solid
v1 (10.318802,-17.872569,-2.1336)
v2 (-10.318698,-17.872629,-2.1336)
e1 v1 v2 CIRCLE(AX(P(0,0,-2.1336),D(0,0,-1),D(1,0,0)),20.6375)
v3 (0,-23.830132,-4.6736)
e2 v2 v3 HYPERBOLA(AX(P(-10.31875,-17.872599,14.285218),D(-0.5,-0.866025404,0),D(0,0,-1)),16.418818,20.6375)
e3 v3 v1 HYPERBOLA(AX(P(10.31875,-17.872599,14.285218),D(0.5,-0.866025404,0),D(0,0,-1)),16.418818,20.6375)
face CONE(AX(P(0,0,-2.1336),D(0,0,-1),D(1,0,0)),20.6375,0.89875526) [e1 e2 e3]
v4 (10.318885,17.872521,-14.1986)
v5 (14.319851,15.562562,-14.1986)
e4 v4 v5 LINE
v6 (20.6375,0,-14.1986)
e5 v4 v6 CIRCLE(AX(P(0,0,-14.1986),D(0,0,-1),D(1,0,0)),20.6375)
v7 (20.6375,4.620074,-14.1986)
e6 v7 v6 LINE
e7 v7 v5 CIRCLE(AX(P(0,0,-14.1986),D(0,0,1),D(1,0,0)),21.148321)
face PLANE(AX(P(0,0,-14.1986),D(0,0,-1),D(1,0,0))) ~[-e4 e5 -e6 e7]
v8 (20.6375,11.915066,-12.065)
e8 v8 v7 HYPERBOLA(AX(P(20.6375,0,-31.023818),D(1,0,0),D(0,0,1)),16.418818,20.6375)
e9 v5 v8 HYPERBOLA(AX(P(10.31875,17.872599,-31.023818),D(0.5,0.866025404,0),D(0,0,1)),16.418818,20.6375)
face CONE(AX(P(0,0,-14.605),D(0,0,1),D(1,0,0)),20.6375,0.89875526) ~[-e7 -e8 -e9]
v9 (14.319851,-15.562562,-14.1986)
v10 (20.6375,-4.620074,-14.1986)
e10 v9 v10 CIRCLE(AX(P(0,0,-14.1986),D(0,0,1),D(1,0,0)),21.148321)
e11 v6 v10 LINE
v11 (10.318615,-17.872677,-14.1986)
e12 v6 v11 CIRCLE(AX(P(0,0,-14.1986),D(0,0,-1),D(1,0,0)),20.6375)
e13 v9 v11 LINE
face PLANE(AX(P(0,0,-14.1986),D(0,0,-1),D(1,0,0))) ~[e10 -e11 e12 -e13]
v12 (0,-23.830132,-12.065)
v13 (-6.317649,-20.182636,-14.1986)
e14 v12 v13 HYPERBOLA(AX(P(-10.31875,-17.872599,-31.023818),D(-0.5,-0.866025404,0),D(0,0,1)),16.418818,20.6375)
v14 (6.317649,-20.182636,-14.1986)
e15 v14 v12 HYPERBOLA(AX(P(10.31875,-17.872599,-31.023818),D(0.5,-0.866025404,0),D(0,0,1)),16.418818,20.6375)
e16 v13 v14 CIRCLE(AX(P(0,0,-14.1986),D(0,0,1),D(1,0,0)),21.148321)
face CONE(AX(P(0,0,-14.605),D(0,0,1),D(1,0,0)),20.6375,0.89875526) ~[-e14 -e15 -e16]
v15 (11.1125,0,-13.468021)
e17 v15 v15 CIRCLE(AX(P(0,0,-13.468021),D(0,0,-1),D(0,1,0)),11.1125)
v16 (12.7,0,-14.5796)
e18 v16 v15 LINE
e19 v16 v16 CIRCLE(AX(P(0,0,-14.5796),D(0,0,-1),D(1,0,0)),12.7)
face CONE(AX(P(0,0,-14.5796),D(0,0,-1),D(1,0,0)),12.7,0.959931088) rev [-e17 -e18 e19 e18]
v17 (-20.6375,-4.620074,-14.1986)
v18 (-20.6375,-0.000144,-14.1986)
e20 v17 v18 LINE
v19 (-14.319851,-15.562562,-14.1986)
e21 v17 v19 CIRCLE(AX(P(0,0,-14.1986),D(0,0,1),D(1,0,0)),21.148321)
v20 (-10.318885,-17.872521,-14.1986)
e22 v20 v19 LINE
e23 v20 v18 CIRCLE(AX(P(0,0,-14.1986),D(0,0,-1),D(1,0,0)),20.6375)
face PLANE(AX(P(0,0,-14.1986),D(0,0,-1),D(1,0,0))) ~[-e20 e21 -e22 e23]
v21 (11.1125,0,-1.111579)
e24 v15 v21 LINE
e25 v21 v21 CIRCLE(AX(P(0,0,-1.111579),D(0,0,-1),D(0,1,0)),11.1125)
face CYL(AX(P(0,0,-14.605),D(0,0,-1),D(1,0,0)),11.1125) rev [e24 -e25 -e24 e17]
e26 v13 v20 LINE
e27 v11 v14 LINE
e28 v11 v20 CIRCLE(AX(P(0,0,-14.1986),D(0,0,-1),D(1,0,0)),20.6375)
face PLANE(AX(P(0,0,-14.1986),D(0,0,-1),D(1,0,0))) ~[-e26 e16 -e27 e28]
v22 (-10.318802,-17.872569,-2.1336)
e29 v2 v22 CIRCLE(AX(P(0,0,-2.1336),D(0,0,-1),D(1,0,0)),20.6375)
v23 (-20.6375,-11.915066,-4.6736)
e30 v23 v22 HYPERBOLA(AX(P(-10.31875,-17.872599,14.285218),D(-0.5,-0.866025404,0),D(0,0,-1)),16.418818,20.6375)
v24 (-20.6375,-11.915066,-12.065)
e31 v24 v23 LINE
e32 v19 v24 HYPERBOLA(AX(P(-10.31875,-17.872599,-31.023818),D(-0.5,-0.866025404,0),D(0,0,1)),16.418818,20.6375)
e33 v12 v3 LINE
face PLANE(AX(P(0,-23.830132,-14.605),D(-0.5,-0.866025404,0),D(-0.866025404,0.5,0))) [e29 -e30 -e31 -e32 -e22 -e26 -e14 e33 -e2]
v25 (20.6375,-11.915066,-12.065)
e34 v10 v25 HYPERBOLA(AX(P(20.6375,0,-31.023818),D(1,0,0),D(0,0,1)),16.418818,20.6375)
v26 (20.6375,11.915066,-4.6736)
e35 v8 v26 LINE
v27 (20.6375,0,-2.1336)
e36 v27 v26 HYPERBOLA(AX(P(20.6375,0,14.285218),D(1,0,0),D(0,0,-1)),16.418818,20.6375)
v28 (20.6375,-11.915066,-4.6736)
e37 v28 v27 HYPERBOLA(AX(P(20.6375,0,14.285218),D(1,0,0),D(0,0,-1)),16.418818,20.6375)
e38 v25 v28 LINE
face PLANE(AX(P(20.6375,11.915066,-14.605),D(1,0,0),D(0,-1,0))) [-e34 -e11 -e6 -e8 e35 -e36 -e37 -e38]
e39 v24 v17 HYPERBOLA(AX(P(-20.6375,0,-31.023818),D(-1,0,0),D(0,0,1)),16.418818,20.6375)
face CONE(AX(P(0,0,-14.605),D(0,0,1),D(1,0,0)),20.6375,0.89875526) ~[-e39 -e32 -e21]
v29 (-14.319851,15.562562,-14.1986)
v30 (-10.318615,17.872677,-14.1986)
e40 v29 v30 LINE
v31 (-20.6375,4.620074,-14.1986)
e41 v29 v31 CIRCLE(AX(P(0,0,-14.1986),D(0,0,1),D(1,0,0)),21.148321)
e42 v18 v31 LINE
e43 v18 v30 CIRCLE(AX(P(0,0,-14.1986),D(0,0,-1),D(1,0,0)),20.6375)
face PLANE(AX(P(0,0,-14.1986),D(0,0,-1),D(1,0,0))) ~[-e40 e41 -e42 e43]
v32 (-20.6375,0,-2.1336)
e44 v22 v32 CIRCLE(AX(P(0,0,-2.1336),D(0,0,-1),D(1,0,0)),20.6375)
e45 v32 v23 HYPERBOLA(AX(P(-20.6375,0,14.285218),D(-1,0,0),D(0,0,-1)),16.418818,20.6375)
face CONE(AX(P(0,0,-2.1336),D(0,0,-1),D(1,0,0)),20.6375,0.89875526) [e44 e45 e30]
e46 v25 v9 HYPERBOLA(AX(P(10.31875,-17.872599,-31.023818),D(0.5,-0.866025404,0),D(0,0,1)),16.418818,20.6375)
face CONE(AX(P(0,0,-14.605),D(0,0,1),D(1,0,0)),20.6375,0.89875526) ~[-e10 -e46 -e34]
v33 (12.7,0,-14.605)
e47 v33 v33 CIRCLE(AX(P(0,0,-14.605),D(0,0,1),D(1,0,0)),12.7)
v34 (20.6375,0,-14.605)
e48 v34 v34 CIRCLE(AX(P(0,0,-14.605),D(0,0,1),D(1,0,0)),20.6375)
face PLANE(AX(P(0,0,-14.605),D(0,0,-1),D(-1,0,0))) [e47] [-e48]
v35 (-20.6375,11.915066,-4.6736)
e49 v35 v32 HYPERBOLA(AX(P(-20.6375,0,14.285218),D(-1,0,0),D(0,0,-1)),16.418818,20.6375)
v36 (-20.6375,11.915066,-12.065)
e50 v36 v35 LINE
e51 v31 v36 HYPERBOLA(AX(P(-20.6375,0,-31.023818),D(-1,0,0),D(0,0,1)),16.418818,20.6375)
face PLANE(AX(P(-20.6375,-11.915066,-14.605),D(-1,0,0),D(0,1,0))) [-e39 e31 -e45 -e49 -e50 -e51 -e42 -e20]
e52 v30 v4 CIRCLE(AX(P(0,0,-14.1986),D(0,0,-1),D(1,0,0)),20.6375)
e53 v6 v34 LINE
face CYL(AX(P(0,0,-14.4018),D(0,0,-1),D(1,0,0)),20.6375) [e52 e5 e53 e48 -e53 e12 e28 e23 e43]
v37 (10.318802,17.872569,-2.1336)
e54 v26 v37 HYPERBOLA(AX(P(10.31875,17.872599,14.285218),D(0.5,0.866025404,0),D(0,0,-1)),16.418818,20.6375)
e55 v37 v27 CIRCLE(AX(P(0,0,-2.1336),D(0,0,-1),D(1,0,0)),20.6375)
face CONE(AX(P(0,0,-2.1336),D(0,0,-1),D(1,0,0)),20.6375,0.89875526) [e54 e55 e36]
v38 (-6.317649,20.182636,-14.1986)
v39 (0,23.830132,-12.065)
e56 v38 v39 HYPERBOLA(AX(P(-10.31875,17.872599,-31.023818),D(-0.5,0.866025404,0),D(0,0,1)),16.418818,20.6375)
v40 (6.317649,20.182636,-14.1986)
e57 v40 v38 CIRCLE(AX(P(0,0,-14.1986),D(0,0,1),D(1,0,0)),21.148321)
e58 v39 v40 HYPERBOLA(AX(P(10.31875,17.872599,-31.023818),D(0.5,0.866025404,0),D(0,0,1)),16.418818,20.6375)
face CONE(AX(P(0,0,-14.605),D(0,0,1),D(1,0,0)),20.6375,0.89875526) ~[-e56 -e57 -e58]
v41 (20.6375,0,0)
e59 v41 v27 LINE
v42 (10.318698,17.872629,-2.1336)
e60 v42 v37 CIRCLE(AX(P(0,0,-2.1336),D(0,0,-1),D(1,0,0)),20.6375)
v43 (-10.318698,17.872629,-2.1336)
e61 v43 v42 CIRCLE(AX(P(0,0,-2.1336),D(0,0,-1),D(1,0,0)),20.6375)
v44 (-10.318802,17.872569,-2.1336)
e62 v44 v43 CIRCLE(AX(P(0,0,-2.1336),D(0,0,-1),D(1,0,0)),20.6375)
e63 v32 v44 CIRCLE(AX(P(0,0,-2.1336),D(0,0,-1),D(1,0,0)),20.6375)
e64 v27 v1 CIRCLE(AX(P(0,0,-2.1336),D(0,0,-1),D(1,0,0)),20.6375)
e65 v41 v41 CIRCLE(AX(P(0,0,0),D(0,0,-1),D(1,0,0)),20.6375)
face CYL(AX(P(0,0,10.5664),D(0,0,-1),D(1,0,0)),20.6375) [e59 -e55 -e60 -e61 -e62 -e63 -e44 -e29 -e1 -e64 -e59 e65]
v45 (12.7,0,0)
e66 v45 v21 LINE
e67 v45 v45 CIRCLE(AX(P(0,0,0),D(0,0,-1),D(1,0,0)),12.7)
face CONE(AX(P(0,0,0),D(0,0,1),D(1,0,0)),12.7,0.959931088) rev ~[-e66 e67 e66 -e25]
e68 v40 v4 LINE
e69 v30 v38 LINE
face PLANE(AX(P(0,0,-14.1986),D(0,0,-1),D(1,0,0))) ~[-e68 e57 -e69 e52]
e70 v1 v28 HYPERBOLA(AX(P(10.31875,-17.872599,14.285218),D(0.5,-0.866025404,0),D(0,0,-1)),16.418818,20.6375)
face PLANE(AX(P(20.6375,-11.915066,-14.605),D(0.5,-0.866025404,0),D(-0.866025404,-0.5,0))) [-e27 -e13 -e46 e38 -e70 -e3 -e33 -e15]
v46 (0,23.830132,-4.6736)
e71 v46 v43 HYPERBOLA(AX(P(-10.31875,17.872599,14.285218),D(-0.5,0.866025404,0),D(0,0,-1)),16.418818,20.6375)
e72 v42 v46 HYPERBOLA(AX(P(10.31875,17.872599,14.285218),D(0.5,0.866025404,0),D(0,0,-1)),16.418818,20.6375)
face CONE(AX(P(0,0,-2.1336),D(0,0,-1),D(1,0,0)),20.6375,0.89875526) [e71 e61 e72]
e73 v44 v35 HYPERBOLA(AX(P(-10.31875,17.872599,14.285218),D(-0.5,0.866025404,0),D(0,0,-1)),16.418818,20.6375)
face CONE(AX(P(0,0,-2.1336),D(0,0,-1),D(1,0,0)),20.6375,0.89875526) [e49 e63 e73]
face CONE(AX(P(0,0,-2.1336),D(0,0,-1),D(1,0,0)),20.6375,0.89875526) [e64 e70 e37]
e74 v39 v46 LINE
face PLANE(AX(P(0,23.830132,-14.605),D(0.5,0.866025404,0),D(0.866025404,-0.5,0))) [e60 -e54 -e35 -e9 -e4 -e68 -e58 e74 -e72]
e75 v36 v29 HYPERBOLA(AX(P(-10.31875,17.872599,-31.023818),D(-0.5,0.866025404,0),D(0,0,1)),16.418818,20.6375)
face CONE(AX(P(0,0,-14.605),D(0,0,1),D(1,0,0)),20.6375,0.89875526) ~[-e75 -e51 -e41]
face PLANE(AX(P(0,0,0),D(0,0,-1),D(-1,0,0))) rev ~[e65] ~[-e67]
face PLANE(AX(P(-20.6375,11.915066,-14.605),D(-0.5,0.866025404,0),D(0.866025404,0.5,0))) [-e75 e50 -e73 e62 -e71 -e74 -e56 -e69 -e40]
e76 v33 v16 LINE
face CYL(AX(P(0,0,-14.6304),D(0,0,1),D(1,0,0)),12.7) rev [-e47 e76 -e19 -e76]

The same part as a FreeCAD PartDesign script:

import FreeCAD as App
import Part
import Sketcher
from FreeCAD import Vector
Q = App.Units.Quantity

doc = App.newDocument("Part")
body = doc.addObject("PartDesign::Body", "Body")

sketch1 = body.newObject("Sketcher::SketchObject", "Sketch")
sketch1.AttachmentSupport = (doc.getObject("XY_Plane"), [""])
sketch1.MapMode = "FlatFace"
sketch1.AttachmentOffset = App.Placement(Vector(0, 0, -0.575 * 25.4), App.Rotation())
sketch1.addGeometry(Part.LineSegment(Vector(20.6375, -11.915066, 0), Vector(20.6375, 11.915066, 0)), False)
sketch1.addGeometry(Part.LineSegment(Vector(20.6375, 11.915066, 0), Vector(0, 23.830132, 0)), False)
sketch1.addGeometry(Part.LineSegment(Vector(0, 23.830132, 0), Vector(-20.6375, 11.915066, 0)), False)
sketch1.addGeometry(Part.LineSegment(Vector(-20.6375, 11.915066, 0), Vector(-20.6375, -11.915066, 0)), False)
sketch1.addGeometry(Part.LineSegment(Vector(-20.6375, -11.915066, 0), Vector(0, -23.830132, 0)), False)
sketch1.addGeometry(Part.LineSegment(Vector(0, -23.830132, 0), Vector(20.6375, -11.915066, 0)), False)
sketch1.addGeometry(Part.Circle(Vector(0, 0, 0), Vector(0, 0, 1), 11.1125), False)
sketch1.addConstraint(Sketcher.Constraint("Coincident", 0, 2, 1, 1))
sketch1.addConstraint(Sketcher.Constraint("Coincident", 1, 2, 2, 1))
sketch1.addConstraint(Sketcher.Constraint("Coincident", 2, 2, 3, 1))
sketch1.addConstraint(Sketcher.Constraint("Coincident", 3, 2, 4, 1))
sketch1.addConstraint(Sketcher.Constraint("Coincident", 4, 2, 5, 1))
sketch1.addConstraint(Sketcher.Constraint("Coincident", 5, 2, 0, 1))
sketch1.addConstraint(Sketcher.Constraint("Vertical", 0))
sketch1.addConstraint(Sketcher.Constraint("Vertical", 3))
sketch1.addConstraint(Sketcher.Constraint("Coincident", 6, 3, -1, 1))
sketch1.addConstraint(Sketcher.Constraint("Symmetric", 0, 2, 3, 2, -1, 1))
sketch1.addConstraint(Sketcher.Constraint("Symmetric", 1, 2, 4, 2, -1, 1))
sketch1.addConstraint(Sketcher.Constraint("PointOnObject", 1, 2, -2))
sketch1.addConstraint(Sketcher.Constraint("Parallel", 2, 5))
sketch1.addConstraint(Sketcher.Constraint("Horizontal", 0, 2, 2, 2))
sketch1.addConstraint(Sketcher.Constraint("Diameter", 6, Q("0.875 in")))
sketch1.addConstraint(Sketcher.Constraint("Angle", 1, Q("150 deg")))
sketch1.addConstraint(Sketcher.Constraint("DistanceX", -1, 1, 0, 2, Q("0.8125 in")))
sketch1.addConstraint(Sketcher.Constraint("DistanceY", 3, 2, 1, 2, Q("35.745199 mm")))
pad1 = body.newObject("PartDesign::Pad", "Pad")
pad1.Profile = sketch1
pad1.Length = Q("0.575 in")

sketch2 = body.newObject("Sketcher::SketchObject", "Sketch001")
sketch2.AttachmentSupport = (doc.getObject("YZ_Plane"), [""])
sketch2.MapMode = "FlatFace"
sketch2.addGeometry(Part.LineSegment(Vector(36.530132, -14.1986, 0), Vector(20.6375, -14.1986, 0)), False)
sketch2.addGeometry(Part.LineSegment(Vector(20.6375, -14.1986, 0), Vector(20.6375, -14.605, 0)), False)
sketch2.addGeometry(Part.LineSegment(Vector(20.6375, -14.605, 0), Vector(36.530132, -14.605, 0)), False)
sketch2.addGeometry(Part.LineSegment(Vector(36.530132, -14.605, 0), Vector(36.530132, -14.1986, 0)), False)
sketch2.addGeometry(Part.LineSegment(Vector(20.6375, 12.7, 0), Vector(20.6375, 0, 0)), False)
sketch2.addGeometry(Part.LineSegment(Vector(20.6375, 0, 0), Vector(23.830132, -2.54, 0)), False)
sketch2.addGeometry(Part.LineSegment(Vector(23.830132, -2.54, 0), Vector(36.530132, -2.54, 0)), False)
sketch2.addGeometry(Part.LineSegment(Vector(36.530132, -2.54, 0), Vector(36.530132, 12.7, 0)), False)
sketch2.addGeometry(Part.LineSegment(Vector(36.530132, 12.7, 0), Vector(20.6375, 12.7, 0)), False)
sketch2.addConstraint(Sketcher.Constraint("Coincident", 0, 2, 1, 1))
sketch2.addConstraint(Sketcher.Constraint("Coincident", 1, 2, 2, 1))
sketch2.addConstraint(Sketcher.Constraint("Coincident", 2, 2, 3, 1))
sketch2.addConstraint(Sketcher.Constraint("Coincident", 3, 2, 0, 1))
sketch2.addConstraint(Sketcher.Constraint("Coincident", 4, 2, 5, 1))
sketch2.addConstraint(Sketcher.Constraint("Coincident", 5, 2, 6, 1))
sketch2.addConstraint(Sketcher.Constraint("Coincident", 6, 2, 7, 1))
sketch2.addConstraint(Sketcher.Constraint("Coincident", 7, 2, 8, 1))
sketch2.addConstraint(Sketcher.Constraint("Coincident", 8, 2, 4, 1))
sketch2.addConstraint(Sketcher.Constraint("Horizontal", 0))
sketch2.addConstraint(Sketcher.Constraint("Vertical", 1))
sketch2.addConstraint(Sketcher.Constraint("Horizontal", 2))
sketch2.addConstraint(Sketcher.Constraint("Vertical", 3))
sketch2.addConstraint(Sketcher.Constraint("Vertical", 4))
sketch2.addConstraint(Sketcher.Constraint("Horizontal", 6))
sketch2.addConstraint(Sketcher.Constraint("Vertical", 7))
sketch2.addConstraint(Sketcher.Constraint("Horizontal", 8))
sketch2.addConstraint(Sketcher.Constraint("PointOnObject", 4, 2, -1))
sketch2.addConstraint(Sketcher.Constraint("Vertical", 1, 2, 4, 2))
sketch2.addConstraint(Sketcher.Constraint("Vertical", 3, 2, 6, 2))
sketch2.addConstraint(Sketcher.Constraint("Equal", 6, 4))
sketch2.addConstraint(Sketcher.Constraint("DistanceX", 6, 1, 6, 2, Q("0.5 in")))
sketch2.addConstraint(Sketcher.Constraint("DistanceY", 7, 1, 7, 2, Q("0.6 in")))
sketch2.addConstraint(Sketcher.Constraint("DistanceY", 1, 2, 1, 1, Q("0.016 in")))
sketch2.addConstraint(Sketcher.Constraint("DistanceX", -1, 1, 0, 2, Q("0.8125 in")))
sketch2.addConstraint(Sketcher.Constraint("DistanceY", 0, 2, -1, 1, Q("0.559 in")))
sketch2.addConstraint(Sketcher.Constraint("DistanceX", 0, 2, 0, 1, Q("15.892632 mm")))
groove = body.newObject("PartDesign::Groove", "Groove")
groove.Profile = sketch2
groove.ReferenceAxis = (sketch2, ["V_Axis"])
groove.Angle = 360

sketch3 = body.newObject("Sketcher::SketchObject", "Sketch002")
sketch3.AttachmentSupport = (doc.getObject("YZ_Plane"), [""])
sketch3.MapMode = "FlatFace"
sketch3.addGeometry(Part.LineSegment(Vector(23.830132, -12.065, 0), Vector(20.6375, -14.605, 0)), False)
sketch3.addGeometry(Part.LineSegment(Vector(20.6375, -14.605, 0), Vector(20.6375, -27.305, 0)), False)
sketch3.addGeometry(Part.LineSegment(Vector(20.6375, -27.305, 0), Vector(36.530132, -27.305, 0)), False)
sketch3.addGeometry(Part.LineSegment(Vector(36.530132, -27.305, 0), Vector(36.530132, -12.065, 0)), False)
sketch3.addGeometry(Part.LineSegment(Vector(36.530132, -12.065, 0), Vector(23.830132, -12.065, 0)), False)
sketch3.addGeometry(Part.LineSegment(Vector(36.530132, -4.6736, 0), Vector(36.530132, 10.5664, 0)), False)
sketch3.addGeometry(Part.LineSegment(Vector(36.530132, 10.5664, 0), Vector(20.6375, 10.5664, 0)), False)
sketch3.addGeometry(Part.LineSegment(Vector(20.6375, 10.5664, 0), Vector(20.6375, -2.1336, 0)), False)
sketch3.addGeometry(Part.LineSegment(Vector(20.6375, -2.1336, 0), Vector(23.830132, -4.6736, 0)), False)
sketch3.addGeometry(Part.LineSegment(Vector(23.830132, -4.6736, 0), Vector(36.530132, -4.6736, 0)), False)
sketch3.addConstraint(Sketcher.Constraint("Coincident", 0, 2, 1, 1))
sketch3.addConstraint(Sketcher.Constraint("Coincident", 1, 2, 2, 1))
sketch3.addConstraint(Sketcher.Constraint("Coincident", 2, 2, 3, 1))
sketch3.addConstraint(Sketcher.Constraint("Coincident", 3, 2, 4, 1))
sketch3.addConstraint(Sketcher.Constraint("Coincident", 4, 2, 0, 1))
sketch3.addConstraint(Sketcher.Constraint("Coincident", 5, 2, 6, 1))
sketch3.addConstraint(Sketcher.Constraint("Coincident", 6, 2, 7, 1))
sketch3.addConstraint(Sketcher.Constraint("Coincident", 7, 2, 8, 1))
sketch3.addConstraint(Sketcher.Constraint("Coincident", 8, 2, 9, 1))
sketch3.addConstraint(Sketcher.Constraint("Coincident", 9, 2, 5, 1))
sketch3.addConstraint(Sketcher.Constraint("Vertical", 1))
sketch3.addConstraint(Sketcher.Constraint("Horizontal", 2))
sketch3.addConstraint(Sketcher.Constraint("Vertical", 3))
sketch3.addConstraint(Sketcher.Constraint("Horizontal", 4))
sketch3.addConstraint(Sketcher.Constraint("Vertical", 5))
sketch3.addConstraint(Sketcher.Constraint("Horizontal", 6))
sketch3.addConstraint(Sketcher.Constraint("Vertical", 7))
sketch3.addConstraint(Sketcher.Constraint("Horizontal", 9))
sketch3.addConstraint(Sketcher.Constraint("Vertical", 3, 2, 5, 2))
sketch3.addConstraint(Sketcher.Constraint("Vertical", 1, 2, 6, 2))
sketch3.addConstraint(Sketcher.Constraint("Vertical", 4, 2, 8, 2))
sketch3.addConstraint(Sketcher.Constraint("Equal", 9, 1))
sketch3.addConstraint(Sketcher.Constraint("Equal", 3, 5))
sketch3.addConstraint(Sketcher.Constraint("Equal", 1, 7))
sketch3.addConstraint(Sketcher.Constraint("DistanceX", 4, 2, 4, 1, Q("0.5 in")))
sketch3.addConstraint(Sketcher.Constraint("DistanceY", 3, 1, 3, 2, Q("0.6 in")))
sketch3.addConstraint(Sketcher.Constraint("DistanceX", -1, 1, 0, 2, Q("0.8125 in")))
sketch3.addConstraint(Sketcher.Constraint("DistanceY", 0, 2, -1, 1, Q("0.575 in")))
sketch3.addConstraint(Sketcher.Constraint("DistanceY", -1, 1, 5, 2, Q("0.416 in")))
sketch3.addConstraint(Sketcher.Constraint("DistanceX", 2, 1, 2, 2, Q("15.892632 mm")))
groove2 = body.newObject("PartDesign::Groove", "Groove001")
groove2.Profile = sketch3
groove2.ReferenceAxis = (sketch3, ["V_Axis"])
groove2.Angle = 360

sketch4 = body.newObject("Sketcher::SketchObject", "Sketch003")
sketch4.AttachmentSupport = (doc.getObject("YZ_Plane"), [""])
sketch4.MapMode = "FlatFace"
sketch4.addGeometry(Part.LineSegment(Vector(12.7, -14.5796, 0), Vector(10.95375, -13.356863, 0)), False)
sketch4.addGeometry(Part.LineSegment(Vector(10.95375, -13.356863, 0), Vector(10.95375, -14.6304, 0)), False)
sketch4.addGeometry(Part.LineSegment(Vector(10.95375, -14.6304, 0), Vector(12.7, -14.6304, 0)), False)
sketch4.addGeometry(Part.LineSegment(Vector(12.7, -14.6304, 0), Vector(12.7, -14.5796, 0)), False)
sketch4.addGeometry(Part.LineSegment(Vector(12.7, 0, 0), Vector(12.7, 0.0508, 0)), False)
sketch4.addGeometry(Part.LineSegment(Vector(12.7, 0.0508, 0), Vector(10.95375, 0.0508, 0)), False)
sketch4.addGeometry(Part.LineSegment(Vector(10.95375, 0.0508, 0), Vector(10.95375, -1.222737, 0)), False)
sketch4.addGeometry(Part.LineSegment(Vector(10.95375, -1.222737, 0), Vector(12.7, 0, 0)), False)
sketch4.addConstraint(Sketcher.Constraint("Coincident", 0, 2, 1, 1))
sketch4.addConstraint(Sketcher.Constraint("Coincident", 1, 2, 2, 1))
sketch4.addConstraint(Sketcher.Constraint("Coincident", 2, 2, 3, 1))
sketch4.addConstraint(Sketcher.Constraint("Coincident", 3, 2, 0, 1))
sketch4.addConstraint(Sketcher.Constraint("Coincident", 4, 2, 5, 1))
sketch4.addConstraint(Sketcher.Constraint("Coincident", 5, 2, 6, 1))
sketch4.addConstraint(Sketcher.Constraint("Coincident", 6, 2, 7, 1))
sketch4.addConstraint(Sketcher.Constraint("Coincident", 7, 2, 4, 1))
sketch4.addConstraint(Sketcher.Constraint("Vertical", 1))
sketch4.addConstraint(Sketcher.Constraint("Horizontal", 2))
sketch4.addConstraint(Sketcher.Constraint("Vertical", 3))
sketch4.addConstraint(Sketcher.Constraint("Vertical", 4))
sketch4.addConstraint(Sketcher.Constraint("Horizontal", 5))
sketch4.addConstraint(Sketcher.Constraint("Vertical", 6))
sketch4.addConstraint(Sketcher.Constraint("PointOnObject", 7, 2, -1))
sketch4.addConstraint(Sketcher.Constraint("Vertical", 3, 2, 4, 2))
sketch4.addConstraint(Sketcher.Constraint("Vertical", 1, 2, 5, 2))
sketch4.addConstraint(Sketcher.Constraint("Equal", 3, 4))
sketch4.addConstraint(Sketcher.Constraint("Equal", 1, 6))
sketch4.addConstraint(Sketcher.Constraint("Angle", 0, Q("145 deg")))
sketch4.addConstraint(Sketcher.Constraint("DistanceX", -1, 1, 2, 2, Q("0.5 in")))
sketch4.addConstraint(Sketcher.Constraint("DistanceY", 3, 1, 3, 2, Q("0.002 in")))
sketch4.addConstraint(Sketcher.Constraint("DistanceY", 1, 2, -1, 1, Q("0.576 in")))
sketch4.addConstraint(Sketcher.Constraint("DistanceX", 2, 1, 2, 2, Q("1.74625 mm")))
groove3 = body.newObject("PartDesign::Groove", "Groove002")
groove3.Profile = sketch4
groove3.ReferenceAxis = (sketch4, ["V_Axis"])
groove3.Angle = 360

doc.recompute()
